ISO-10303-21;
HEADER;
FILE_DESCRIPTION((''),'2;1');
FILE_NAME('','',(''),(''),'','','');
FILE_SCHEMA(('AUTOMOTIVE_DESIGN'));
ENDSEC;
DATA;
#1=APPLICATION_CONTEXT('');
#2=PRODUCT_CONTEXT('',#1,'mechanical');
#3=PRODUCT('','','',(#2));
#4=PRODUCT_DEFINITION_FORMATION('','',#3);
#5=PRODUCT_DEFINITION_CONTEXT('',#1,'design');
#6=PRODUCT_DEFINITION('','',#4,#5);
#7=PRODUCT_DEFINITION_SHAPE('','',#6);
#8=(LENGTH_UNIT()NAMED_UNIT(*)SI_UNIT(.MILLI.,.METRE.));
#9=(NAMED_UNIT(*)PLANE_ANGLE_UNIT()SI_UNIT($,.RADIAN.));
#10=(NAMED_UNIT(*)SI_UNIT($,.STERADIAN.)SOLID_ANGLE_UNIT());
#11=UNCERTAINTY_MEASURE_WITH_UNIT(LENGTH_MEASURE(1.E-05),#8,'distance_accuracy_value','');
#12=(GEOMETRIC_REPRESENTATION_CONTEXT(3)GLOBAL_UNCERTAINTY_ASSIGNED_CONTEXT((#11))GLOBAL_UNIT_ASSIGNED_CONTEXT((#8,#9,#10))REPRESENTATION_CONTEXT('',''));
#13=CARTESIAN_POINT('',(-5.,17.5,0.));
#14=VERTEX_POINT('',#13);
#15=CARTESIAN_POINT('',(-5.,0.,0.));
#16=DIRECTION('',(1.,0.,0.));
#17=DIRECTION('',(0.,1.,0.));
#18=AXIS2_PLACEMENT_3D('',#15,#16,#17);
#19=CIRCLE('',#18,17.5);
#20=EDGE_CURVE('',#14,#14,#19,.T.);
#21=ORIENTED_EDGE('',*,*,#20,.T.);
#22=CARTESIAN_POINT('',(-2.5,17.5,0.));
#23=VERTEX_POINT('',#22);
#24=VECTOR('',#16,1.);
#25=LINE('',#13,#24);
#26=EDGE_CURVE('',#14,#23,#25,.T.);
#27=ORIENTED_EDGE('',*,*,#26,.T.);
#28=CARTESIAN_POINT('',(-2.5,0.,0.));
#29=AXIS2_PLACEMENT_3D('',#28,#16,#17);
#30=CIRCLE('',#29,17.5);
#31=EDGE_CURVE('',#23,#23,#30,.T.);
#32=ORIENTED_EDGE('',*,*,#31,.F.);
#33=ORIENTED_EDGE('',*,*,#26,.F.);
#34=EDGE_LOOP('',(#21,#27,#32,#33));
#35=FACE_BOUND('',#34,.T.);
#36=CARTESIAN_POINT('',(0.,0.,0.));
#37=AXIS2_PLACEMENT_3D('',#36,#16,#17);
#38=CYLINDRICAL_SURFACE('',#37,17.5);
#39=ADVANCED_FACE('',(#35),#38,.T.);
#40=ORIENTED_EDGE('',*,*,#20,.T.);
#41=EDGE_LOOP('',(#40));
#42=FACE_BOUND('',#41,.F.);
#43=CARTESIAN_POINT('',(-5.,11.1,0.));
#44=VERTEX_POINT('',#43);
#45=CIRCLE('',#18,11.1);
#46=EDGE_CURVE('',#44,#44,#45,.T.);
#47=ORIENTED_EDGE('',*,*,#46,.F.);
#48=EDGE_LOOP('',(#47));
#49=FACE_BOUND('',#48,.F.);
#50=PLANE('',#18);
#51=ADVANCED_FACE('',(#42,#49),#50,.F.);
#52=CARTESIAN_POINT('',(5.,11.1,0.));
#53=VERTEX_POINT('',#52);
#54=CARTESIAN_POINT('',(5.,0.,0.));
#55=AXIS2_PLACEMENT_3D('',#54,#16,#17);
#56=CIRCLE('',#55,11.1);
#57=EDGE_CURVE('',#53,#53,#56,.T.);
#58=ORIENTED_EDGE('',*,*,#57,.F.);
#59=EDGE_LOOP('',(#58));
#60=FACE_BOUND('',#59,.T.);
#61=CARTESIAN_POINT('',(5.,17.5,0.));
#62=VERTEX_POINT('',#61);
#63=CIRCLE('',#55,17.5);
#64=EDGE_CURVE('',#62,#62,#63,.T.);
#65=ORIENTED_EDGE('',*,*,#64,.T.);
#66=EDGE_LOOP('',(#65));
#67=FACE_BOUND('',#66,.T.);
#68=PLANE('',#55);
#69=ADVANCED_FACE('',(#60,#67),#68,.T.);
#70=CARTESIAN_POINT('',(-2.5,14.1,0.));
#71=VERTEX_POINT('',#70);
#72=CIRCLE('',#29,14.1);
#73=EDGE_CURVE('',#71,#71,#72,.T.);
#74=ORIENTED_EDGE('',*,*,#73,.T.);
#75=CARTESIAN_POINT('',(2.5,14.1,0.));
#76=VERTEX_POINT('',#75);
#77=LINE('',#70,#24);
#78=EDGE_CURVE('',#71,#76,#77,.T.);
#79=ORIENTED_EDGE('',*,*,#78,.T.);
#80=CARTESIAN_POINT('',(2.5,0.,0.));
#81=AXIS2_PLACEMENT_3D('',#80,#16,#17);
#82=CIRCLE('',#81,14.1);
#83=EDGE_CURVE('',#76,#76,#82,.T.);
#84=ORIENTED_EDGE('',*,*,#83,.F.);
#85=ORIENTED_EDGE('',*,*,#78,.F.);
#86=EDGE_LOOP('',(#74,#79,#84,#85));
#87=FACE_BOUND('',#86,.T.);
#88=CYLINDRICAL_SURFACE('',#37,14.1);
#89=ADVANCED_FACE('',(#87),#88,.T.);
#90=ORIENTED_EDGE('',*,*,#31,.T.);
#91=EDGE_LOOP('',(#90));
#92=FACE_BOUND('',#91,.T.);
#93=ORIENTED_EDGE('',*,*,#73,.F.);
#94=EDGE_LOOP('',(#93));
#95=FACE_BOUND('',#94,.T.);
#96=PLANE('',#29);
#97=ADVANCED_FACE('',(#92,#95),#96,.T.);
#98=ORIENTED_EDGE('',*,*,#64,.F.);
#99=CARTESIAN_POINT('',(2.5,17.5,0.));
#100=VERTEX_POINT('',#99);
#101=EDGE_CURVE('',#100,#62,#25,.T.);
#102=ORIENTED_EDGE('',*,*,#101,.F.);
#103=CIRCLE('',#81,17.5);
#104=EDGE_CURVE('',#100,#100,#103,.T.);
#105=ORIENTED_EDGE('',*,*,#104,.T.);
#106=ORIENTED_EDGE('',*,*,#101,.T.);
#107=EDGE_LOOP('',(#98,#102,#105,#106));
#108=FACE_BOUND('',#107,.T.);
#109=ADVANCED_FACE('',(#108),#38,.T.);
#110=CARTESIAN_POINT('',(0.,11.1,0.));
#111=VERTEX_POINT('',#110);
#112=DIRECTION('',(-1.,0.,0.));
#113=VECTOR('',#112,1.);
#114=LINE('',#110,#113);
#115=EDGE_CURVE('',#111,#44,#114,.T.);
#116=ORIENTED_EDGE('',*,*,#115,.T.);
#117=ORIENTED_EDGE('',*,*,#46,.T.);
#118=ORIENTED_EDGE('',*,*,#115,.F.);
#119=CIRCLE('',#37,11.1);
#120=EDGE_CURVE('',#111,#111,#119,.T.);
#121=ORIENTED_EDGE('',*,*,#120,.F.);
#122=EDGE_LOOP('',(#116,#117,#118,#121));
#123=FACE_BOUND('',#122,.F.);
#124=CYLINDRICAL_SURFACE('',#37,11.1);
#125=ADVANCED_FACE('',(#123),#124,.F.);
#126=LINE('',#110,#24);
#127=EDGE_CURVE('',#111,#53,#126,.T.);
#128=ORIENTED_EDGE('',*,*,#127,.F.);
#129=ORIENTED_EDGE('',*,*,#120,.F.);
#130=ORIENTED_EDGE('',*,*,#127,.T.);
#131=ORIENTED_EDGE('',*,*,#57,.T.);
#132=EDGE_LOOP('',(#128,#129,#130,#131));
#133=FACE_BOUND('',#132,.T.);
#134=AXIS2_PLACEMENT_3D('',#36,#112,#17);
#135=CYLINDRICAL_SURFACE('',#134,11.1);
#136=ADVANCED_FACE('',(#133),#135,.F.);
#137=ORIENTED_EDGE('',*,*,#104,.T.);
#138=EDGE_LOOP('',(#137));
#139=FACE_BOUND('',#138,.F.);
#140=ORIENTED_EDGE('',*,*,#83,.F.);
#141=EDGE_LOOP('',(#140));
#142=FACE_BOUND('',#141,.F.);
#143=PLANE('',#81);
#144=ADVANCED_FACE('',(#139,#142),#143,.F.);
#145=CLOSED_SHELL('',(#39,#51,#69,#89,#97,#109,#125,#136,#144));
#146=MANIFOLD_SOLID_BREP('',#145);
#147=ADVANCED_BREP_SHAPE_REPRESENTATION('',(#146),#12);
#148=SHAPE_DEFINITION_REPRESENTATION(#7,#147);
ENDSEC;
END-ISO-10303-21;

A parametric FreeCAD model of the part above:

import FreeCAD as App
import Part
import Sketcher
from FreeCAD import Vector
Q = App.Units.Quantity

doc = App.newDocument("Part")
body = doc.addObject("PartDesign::Body", "Body")

# Sketch on YZ plane
sketch1 = body.newObject("Sketcher::SketchObject", "Sketch")
sketch1.AttachmentSupport = (doc.getObject("YZ_Plane"), [""])
sketch1.MapMode = "FlatFace"
sketch1.addGeometry([
    Part.Circle(Vector(0, 0, 0), Vector(0, 0, 1), 17.5),
    Part.Circle(Vector(0, 0, 0), Vector(0, 0, 1), 11.1),
], False)
sketch1.addConstraint([
    Sketcher.Constraint("Coincident", 0, 3, -1, 1),
    Sketcher.Constraint("Coincident", 1, 3, -1, 1),
    Sketcher.Constraint("Diameter", 0, Q("35 mm")),
    Sketcher.Constraint("Diameter", 1, Q("22.2 mm")),
])
pad1 = body.newObject("PartDesign::Pad", "Pad")
pad1.Profile = sketch1
pad1.Length = 10
pad1.Midplane = True

# Sketch on YZ plane
sketch2 = body.newObject("Sketcher::SketchObject", "Sketch001")
sketch2.AttachmentSupport = (doc.getObject("YZ_Plane"), [""])
sketch2.MapMode = "FlatFace"
sketch2.addGeometry([
    Part.Circle(Vector(0, 0, 0), Vector(0, 0, 1), 17.5),
    Part.Circle(Vector(0, 0, 0), Vector(0, 0, 1), 14.1),
], False)
sketch2.addConstraint([
    Sketcher.Constraint("Coincident", 0, 3, -1, 1),
    Sketcher.Constraint("Coincident", 1, 3, -1, 1),
    Sketcher.Constraint("Diameter", 0, Q("35 mm")),
    Sketcher.Constraint("Diameter", 1, Q("28.2 mm")),
])
pocket1 = body.newObject("PartDesign::Pocket", "Pocket")
pocket1.Profile = sketch2
pocket1.Length = 5
pocket1.Midplane = True

doc.recompute()
